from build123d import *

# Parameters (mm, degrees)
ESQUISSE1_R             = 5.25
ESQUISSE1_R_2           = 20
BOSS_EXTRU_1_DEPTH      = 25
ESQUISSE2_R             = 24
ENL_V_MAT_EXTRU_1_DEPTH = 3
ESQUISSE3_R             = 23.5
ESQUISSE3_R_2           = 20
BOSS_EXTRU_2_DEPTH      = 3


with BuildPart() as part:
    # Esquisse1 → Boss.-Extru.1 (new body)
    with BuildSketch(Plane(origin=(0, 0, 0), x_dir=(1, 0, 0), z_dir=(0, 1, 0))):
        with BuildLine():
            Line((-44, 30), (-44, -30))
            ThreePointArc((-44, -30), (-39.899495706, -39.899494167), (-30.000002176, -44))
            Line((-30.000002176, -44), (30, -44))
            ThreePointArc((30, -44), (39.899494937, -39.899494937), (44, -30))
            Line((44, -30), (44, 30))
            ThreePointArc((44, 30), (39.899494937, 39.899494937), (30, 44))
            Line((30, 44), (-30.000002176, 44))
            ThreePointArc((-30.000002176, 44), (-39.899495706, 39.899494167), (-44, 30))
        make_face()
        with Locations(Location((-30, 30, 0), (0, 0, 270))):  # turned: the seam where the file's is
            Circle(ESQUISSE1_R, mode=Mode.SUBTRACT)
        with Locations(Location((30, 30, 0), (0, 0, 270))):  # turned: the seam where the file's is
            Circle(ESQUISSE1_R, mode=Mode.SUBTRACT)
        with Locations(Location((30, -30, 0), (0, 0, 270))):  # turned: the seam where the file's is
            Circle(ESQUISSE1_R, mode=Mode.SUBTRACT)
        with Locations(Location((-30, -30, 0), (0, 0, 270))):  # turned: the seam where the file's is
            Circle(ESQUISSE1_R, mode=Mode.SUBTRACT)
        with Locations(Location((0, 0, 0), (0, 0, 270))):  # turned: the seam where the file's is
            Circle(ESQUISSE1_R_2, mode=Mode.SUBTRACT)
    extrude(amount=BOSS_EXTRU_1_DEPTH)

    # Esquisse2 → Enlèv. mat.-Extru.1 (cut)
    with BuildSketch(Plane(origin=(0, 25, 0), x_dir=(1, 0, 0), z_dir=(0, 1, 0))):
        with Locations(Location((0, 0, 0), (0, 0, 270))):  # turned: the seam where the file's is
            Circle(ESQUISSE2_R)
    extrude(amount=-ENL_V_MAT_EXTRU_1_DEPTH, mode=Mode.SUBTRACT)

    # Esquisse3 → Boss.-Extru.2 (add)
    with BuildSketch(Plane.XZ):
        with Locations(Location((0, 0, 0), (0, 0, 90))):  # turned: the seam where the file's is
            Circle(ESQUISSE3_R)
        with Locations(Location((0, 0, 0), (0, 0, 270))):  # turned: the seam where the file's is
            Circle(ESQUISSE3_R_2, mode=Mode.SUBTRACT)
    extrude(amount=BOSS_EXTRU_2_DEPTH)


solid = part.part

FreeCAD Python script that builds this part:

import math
import FreeCAD as App
import Part
import Sketcher
Q = App.Units.Quantity

doc = App.newDocument("Part")
params = doc.addObject("Spreadsheet::Sheet", "Params")
for row, (alias, value) in enumerate([
    ("sketch1_diameter", "40 mm"),
    ("sketch1_radius", "14 mm"),
    ("sketch1_diameter2", "10.5 mm"),
    ("sketch1_height", "60 mm"),
    ("pad1_length", "25 mm"),
    ("sketch2_diameter", "48 mm"),
    ("pocket1_length", "3 mm"),
    ("sketch3_diameter", "47 mm"),
    ("sketch3_diameter2", "40 mm"),
    ("pad2_length", "3 mm"),
], start=1):
    params.set(f"A{row}", alias)
    params.set(f"B{row}", "=" + value)
    params.setAlias(f"B{row}", alias)

body = doc.addObject("PartDesign::Body", "Body")

# Sketch on XZ plane
sketch1 = doc.addObject("Sketcher::SketchObject", "Sketch")
body.addObject(sketch1)
sketch1.AttachmentSupport = (doc.XZ_Plane, [""])
sketch1.MapMode = "FlatFace"
sketch1.addGeometry(Part.LineSegment(App.Vector(-44, -30, 0), App.Vector(-44, 30, 0)), False)
sketch1.addGeometry(Part.ArcOfCircle(Part.Circle(App.Vector(-30, 30, 0), App.Vector(0, 0, 1), 14), math.radians(90), math.radians(180)), False)
sketch1.addGeometry(Part.LineSegment(App.Vector(-30, 44, 0), App.Vector(30, 44, 0)), False)
sketch1.addGeometry(Part.ArcOfCircle(Part.Circle(App.Vector(30, 30, 0), App.Vector(0, 0, 1), 14), math.radians(0), math.radians(90)), False)
sketch1.addGeometry(Part.LineSegment(App.Vector(44, 30, 0), App.Vector(44, -30, 0)), False)
sketch1.addGeometry(Part.ArcOfCircle(Part.Circle(App.Vector(30, -30, 0), App.Vector(0, 0, 1), 14), math.radians(-90), math.radians(0)), False)
sketch1.addGeometry(Part.LineSegment(App.Vector(30, -44, 0), App.Vector(-30, -44, 0)), False)
sketch1.addGeometry(Part.ArcOfCircle(Part.Circle(App.Vector(-30, -30, 0), App.Vector(0, 0, 1), 14), math.radians(180), math.radians(270)), False)
sketch1.addGeometry(Part.Circle(App.Vector(-30, 30, 0), App.Vector(0, 0, 1), 5), False)
sketch1.addGeometry(Part.Circle(App.Vector(30, 30, 0), App.Vector(0, 0, 1), 5), False)
sketch1.addGeometry(Part.Circle(App.Vector(-30, -30, 0), App.Vector(0, 0, 1), 5), False)
sketch1.addGeometry(Part.Circle(App.Vector(0, 0, 0), App.Vector(0, 0, 1), 20), False)
sketch1.addGeometry(Part.Circle(App.Vector(30, -30, 0), App.Vector(0, 0, 1), 5), False)
sketch1.addConstraint(Sketcher.Constraint("Tangent", 0, 2, 1, 2))
sketch1.addConstraint(Sketcher.Constraint("Tangent", 1, 1, 2, 1))
sketch1.addConstraint(Sketcher.Constraint("Tangent", 2, 2, 3, 2))
sketch1.addConstraint(Sketcher.Constraint("Tangent", 3, 1, 4, 1))
sketch1.addConstraint(Sketcher.Constraint("Tangent", 4, 2, 5, 2))
sketch1.addConstraint(Sketcher.Constraint("Tangent", 5, 1, 6, 1))
sketch1.addConstraint(Sketcher.Constraint("Tangent", 6, 2, 7, 2))
sketch1.addConstraint(Sketcher.Constraint("Tangent", 7, 1, 0, 1))
sketch1.addConstraint(Sketcher.Constraint("Vertical", 0))
sketch1.addConstraint(Sketcher.Constraint("Horizontal", 2))
sketch1.addConstraint(Sketcher.Constraint("Vertical", 4))
sketch1.addConstraint(Sketcher.Constraint("Horizontal", 6))
sketch1.addConstraint(Sketcher.Constraint("Coincident", 11, 3, -1, 1))
sketch1.addConstraint(Sketcher.Constraint("Coincident", 8, 3, 1, 3))
sketch1.addConstraint(Sketcher.Constraint("Coincident", 9, 3, 3, 3))
sketch1.addConstraint(Sketcher.Constraint("Coincident", 10, 3, 7, 3))
sketch1.addConstraint(Sketcher.Constraint("Coincident", 12, 3, 5, 3))
sketch1.addConstraint(Sketcher.Constraint("Equal", 1, 3))
sketch1.addConstraint(Sketcher.Constraint("Equal", 3, 5))
sketch1.addConstraint(Sketcher.Constraint("Equal", 5, 7))
sketch1.addConstraint(Sketcher.Constraint("Equal", 8, 9))
sketch1.addConstraint(Sketcher.Constraint("Equal", 9, 10))
sketch1.addConstraint(Sketcher.Constraint("Equal", 10, 12))
sketch1.addConstraint(Sketcher.Constraint("Symmetric", 1, 3, 5, 3, -1, 1))
sketch1.addConstraint(Sketcher.Constraint("Diameter", 11, Q("40 mm")))
sketch1.addConstraint(Sketcher.Constraint("Radius", 1, Q("14 mm")))
sketch1.addConstraint(Sketcher.Constraint("Diameter", 8, Q("10.5 mm")))
sketch1.addConstraint(Sketcher.Constraint("DistanceY", 0, 1, 0, 2, Q("60 mm")))
sketch1.addConstraint(Sketcher.Constraint("DistanceX", 1, 3, -1, 1, Q("30 mm")))
sketch1.setExpression("Constraints[24]", "Params.sketch1_diameter")
sketch1.setExpression("Constraints[25]", "Params.sketch1_radius")
sketch1.setExpression("Constraints[26]", "Params.sketch1_diameter2")
sketch1.setExpression("Constraints[27]", "Params.sketch1_height")
pad1 = doc.addObject("PartDesign::Pad", "Pad")
body.addObject(pad1)
pad1.Profile = sketch1
pad1.setExpression("Length", "Params.pad1_length")
pad1.Reversed = True

# Sketch on XZ plane
sketch2 = doc.addObject("Sketcher::SketchObject", "Sketch001")
body.addObject(sketch2)
sketch2.AttachmentSupport = (doc.XZ_Plane, [""])
sketch2.MapMode = "FlatFace"
sketch2.AttachmentOffset = App.Placement(App.Vector(0, 0, -25), App.Rotation())
sketch2.addGeometry(Part.Circle(App.Vector(0, 0, 0), App.Vector(0, 0, 1), 24), False)
sketch2.addConstraint(Sketcher.Constraint("Coincident", 0, 3, -1, 1))
sketch2.addConstraint(Sketcher.Constraint("Diameter", 0, Q("48 mm")))
sketch2.setExpression("Constraints[1]", "Params.sketch2_diameter")
pocket1 = doc.addObject("PartDesign::Pocket", "Pocket")
body.addObject(pocket1)
pocket1.Profile = sketch2
pocket1.setExpression("Length", "Params.pocket1_length")
pocket1.Reversed = True

# Sketch on XZ plane
sketch3 = doc.addObject("Sketcher::SketchObject", "Sketch002")
body.addObject(sketch3)
sketch3.AttachmentSupport = (doc.XZ_Plane, [""])
sketch3.MapMode = "FlatFace"
sketch3.addGeometry(Part.Circle(App.Vector(0, 0, 0), App.Vector(0, 0, 1), 24), False)
sketch3.addGeometry(Part.Circle(App.Vector(0, 0, 0), App.Vector(0, 0, 1), 20), False)
sketch3.addConstraint(Sketcher.Constraint("Coincident", 0, 3, -1, 1))
sketch3.addConstraint(Sketcher.Constraint("Coincident", 1, 3, -1, 1))
sketch3.addConstraint(Sketcher.Constraint("Diameter", 0, Q("47 mm")))
sketch3.addConstraint(Sketcher.Constraint("Diameter", 1, Q("40 mm")))
sketch3.setExpression("Constraints[2]", "Params.sketch3_diameter")
sketch3.setExpression("Constraints[3]", "Params.sketch3_diameter2")
pad2 = doc.addObject("PartDesign::Pad", "Pad001")
body.addObject(pad2)
pad2.Profile = sketch3
pad2.setExpression("Length", "Params.pad2_length")

doc.recompute()
